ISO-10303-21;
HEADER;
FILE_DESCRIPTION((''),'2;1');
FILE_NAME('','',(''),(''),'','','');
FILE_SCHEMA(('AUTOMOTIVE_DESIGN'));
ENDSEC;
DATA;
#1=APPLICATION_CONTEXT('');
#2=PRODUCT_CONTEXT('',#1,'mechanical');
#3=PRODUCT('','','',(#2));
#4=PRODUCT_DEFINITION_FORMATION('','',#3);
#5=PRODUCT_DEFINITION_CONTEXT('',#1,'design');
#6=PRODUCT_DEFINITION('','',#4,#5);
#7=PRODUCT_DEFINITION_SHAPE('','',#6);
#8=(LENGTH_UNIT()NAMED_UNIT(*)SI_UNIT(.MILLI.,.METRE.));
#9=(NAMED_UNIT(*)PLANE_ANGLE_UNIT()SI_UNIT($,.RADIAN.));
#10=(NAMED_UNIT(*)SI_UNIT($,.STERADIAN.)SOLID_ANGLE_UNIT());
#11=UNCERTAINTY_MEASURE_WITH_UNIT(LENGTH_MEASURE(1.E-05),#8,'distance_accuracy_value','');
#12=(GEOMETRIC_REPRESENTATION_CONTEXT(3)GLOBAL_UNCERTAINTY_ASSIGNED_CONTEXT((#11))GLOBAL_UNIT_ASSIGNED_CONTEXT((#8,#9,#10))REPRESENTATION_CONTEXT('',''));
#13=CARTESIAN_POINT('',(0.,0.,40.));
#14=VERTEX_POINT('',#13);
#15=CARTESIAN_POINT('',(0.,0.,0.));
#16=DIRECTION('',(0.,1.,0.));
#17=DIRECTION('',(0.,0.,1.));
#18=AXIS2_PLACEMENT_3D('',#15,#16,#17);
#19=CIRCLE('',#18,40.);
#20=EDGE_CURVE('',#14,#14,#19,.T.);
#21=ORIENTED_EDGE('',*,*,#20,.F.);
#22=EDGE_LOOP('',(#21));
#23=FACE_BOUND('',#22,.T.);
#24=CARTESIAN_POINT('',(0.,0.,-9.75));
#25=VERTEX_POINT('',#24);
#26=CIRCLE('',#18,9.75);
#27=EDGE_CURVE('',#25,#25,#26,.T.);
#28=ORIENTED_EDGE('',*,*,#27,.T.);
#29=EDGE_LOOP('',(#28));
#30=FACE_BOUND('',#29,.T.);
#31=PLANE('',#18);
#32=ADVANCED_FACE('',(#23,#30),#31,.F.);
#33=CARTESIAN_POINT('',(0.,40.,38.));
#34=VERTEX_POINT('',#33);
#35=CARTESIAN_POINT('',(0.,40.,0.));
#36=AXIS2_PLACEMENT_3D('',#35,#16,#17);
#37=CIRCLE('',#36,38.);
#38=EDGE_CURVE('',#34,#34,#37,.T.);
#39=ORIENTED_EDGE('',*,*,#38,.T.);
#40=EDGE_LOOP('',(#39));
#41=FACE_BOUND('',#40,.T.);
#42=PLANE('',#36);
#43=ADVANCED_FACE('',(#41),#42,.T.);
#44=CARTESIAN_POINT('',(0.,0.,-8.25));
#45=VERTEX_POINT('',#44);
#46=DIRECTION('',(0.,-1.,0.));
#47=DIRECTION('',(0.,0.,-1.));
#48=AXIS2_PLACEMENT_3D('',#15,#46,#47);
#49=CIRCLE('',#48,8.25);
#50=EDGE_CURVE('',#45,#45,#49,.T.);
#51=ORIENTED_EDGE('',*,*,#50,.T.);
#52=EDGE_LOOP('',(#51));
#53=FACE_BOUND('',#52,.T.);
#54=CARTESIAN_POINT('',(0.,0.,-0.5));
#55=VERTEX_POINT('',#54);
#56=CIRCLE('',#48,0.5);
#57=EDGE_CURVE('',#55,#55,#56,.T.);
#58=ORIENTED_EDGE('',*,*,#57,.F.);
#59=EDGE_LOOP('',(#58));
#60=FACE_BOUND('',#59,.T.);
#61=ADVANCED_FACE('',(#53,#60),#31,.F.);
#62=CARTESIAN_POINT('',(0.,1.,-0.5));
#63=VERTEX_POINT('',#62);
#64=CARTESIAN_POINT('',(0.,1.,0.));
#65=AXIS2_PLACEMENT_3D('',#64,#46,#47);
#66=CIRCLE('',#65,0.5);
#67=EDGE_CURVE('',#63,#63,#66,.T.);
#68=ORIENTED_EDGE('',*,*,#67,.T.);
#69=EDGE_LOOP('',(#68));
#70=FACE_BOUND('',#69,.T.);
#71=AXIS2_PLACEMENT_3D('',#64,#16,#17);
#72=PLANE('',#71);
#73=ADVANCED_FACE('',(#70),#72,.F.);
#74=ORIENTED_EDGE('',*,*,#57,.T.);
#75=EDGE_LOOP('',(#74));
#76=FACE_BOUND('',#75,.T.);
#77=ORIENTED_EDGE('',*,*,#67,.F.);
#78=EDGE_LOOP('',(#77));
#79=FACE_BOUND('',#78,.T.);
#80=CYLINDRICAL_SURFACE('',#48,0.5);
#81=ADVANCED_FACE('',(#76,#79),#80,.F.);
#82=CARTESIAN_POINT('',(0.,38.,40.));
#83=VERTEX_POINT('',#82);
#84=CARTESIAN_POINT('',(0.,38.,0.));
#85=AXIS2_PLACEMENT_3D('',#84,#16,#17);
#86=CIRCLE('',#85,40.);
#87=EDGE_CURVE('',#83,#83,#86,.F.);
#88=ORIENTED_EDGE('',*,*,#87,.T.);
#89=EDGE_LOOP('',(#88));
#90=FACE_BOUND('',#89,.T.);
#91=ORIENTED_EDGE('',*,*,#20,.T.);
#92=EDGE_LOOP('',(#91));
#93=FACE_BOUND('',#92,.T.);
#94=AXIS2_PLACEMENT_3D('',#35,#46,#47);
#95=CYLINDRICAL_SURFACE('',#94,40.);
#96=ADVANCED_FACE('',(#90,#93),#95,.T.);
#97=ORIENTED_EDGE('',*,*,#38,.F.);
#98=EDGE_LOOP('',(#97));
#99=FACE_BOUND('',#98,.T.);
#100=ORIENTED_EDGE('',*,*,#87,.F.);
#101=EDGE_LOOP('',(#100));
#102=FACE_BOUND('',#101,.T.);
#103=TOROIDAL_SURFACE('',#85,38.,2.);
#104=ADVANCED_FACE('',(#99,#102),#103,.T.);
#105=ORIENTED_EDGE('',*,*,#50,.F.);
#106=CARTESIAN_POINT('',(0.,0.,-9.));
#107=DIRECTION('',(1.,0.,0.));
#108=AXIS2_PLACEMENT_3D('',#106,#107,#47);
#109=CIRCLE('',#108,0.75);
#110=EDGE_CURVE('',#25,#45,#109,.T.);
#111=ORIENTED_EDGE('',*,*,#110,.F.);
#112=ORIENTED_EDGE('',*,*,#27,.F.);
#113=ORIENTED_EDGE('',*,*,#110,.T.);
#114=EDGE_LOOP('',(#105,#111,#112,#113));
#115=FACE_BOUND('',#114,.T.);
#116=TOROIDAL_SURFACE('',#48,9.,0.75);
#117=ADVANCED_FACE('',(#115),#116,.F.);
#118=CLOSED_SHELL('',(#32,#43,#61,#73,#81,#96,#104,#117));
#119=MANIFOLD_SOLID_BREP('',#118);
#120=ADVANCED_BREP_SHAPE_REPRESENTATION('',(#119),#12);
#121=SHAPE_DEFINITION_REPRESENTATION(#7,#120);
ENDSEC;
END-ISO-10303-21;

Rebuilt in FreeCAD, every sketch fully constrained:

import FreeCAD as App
import Part
import Sketcher

V = App.Vector


def edges_at(feature, points):
    """Names of the edges that pass closest to the given points."""
    edges = feature.Shape.Edges
    near = lambda p: min(range(len(edges)), key=lambda i: edges[i].distToShape(Part.Vertex(*p))[0])
    return sorted({f"Edge{near(p) + 1}" for p in points})


def add_polygon(sketch, points):
    """Adds a closed chain of lines whose ends are joined by coincident constraints."""
    first, n = sketch.GeometryCount, len(points)
    for a, b in zip(points, points[1:] + points[:1]):
        sketch.addGeometry(Part.LineSegment(App.Vector(*a, 0), App.Vector(*b, 0)), False)
    for i in range(n):
        sketch.addConstraint(Sketcher.Constraint("Coincident", first + i, 2, first + (i + 1) % n, 1))

doc = App.newDocument("Part")
body = doc.addObject("PartDesign::Body", "Body")

sketch1 = body.newObject("Sketcher::SketchObject", "Sketch")
sketch1.AttachmentSupport = (doc.getObject("XZ_Plane"), [""])
sketch1.MapMode = "FlatFace"
sketch1.addGeometry(Part.Circle(V(0, 0, 0), V(0, 0, 1), 40), False)
sketch1.addConstraint(Sketcher.Constraint("Coincident", 0, 3, -1, 1))
sketch1.addConstraint(Sketcher.Constraint("Diameter", 0, 80.0))
pad1 = body.newObject("PartDesign::Pad", "Pad")
pad1.Profile = sketch1
pad1.Length = 40
pad1.Reversed = True
doc.recompute()

fillet = body.newObject("PartDesign::Fillet", "Fillet")
fillet.Base = (pad1, edges_at(pad1, [(-40, 40, 0)]))
fillet.Radius = 2

sketch2 = body.newObject("Sketcher::SketchObject", "Sketch001")
sketch2.AttachmentSupport = (doc.getObject("XY_Plane"), [""])
sketch2.MapMode = "FlatFace"
sketch2.addGeometry(Part.Circle(V(9, 0, 0), V(0, 0, 1), 0.75), False)
sketch2.addConstraint(Sketcher.Constraint("PointOnObject", 0, 3, -1))
sketch2.addConstraint(Sketcher.Constraint("Diameter", 0, 1.5))
sketch2.addConstraint(Sketcher.Constraint("DistanceX", -1, 1, 0, 3, 9.0))

sketch3 = body.newObject("Sketcher::SketchObject", "Sketch002")
sketch3.AttachmentSupport = (doc.getObject("XZ_Plane"), [""])
sketch3.MapMode = "FlatFace"
sketch3.addGeometry(Part.Circle(V(0, 0, 0), V(0, 0, 1), 9), False)
sketch3.addConstraint(Sketcher.Constraint("Coincident", 0, 3, -1, 1))
sketch3.addConstraint(Sketcher.Constraint("Diameter", 0, 18.0))
doc.recompute()

subtractivepipe = body.newObject("PartDesign::SubtractivePipe", "SubtractivePipe")
subtractivepipe.Profile = sketch2
subtractivepipe.Spine = (sketch3, ["Edge1"])

sketch4 = body.newObject("Sketcher::SketchObject", "Sketch003")
sketch4.AttachmentSupport = (doc.getObject("XY_Plane"), [""])
sketch4.MapMode = "FlatFace"
add_polygon(sketch4, [(0, 1), (0, 0), (0.5, 0), (0.5, 1)])
sketch4.addConstraint(Sketcher.Constraint("Vertical", 0))
sketch4.addConstraint(Sketcher.Constraint("Horizontal", 1))
sketch4.addConstraint(Sketcher.Constraint("Vertical", 2))
sketch4.addConstraint(Sketcher.Constraint("Horizontal", 3))
sketch4.addConstraint(Sketcher.Constraint("Coincident", 0, 2, -1, 1))
sketch4.addConstraint(Sketcher.Constraint("DistanceY", 0, 2, 0, 1, 1.0))
sketch4.addConstraint(Sketcher.Constraint("DistanceX", 1, 1, 1, 2, 0.5))
groove = body.newObject("PartDesign::Groove", "Groove")
groove.Profile = sketch4
groove.ReferenceAxis = (sketch4, ["V_Axis"])
groove.Angle = 360

doc.recompute()
